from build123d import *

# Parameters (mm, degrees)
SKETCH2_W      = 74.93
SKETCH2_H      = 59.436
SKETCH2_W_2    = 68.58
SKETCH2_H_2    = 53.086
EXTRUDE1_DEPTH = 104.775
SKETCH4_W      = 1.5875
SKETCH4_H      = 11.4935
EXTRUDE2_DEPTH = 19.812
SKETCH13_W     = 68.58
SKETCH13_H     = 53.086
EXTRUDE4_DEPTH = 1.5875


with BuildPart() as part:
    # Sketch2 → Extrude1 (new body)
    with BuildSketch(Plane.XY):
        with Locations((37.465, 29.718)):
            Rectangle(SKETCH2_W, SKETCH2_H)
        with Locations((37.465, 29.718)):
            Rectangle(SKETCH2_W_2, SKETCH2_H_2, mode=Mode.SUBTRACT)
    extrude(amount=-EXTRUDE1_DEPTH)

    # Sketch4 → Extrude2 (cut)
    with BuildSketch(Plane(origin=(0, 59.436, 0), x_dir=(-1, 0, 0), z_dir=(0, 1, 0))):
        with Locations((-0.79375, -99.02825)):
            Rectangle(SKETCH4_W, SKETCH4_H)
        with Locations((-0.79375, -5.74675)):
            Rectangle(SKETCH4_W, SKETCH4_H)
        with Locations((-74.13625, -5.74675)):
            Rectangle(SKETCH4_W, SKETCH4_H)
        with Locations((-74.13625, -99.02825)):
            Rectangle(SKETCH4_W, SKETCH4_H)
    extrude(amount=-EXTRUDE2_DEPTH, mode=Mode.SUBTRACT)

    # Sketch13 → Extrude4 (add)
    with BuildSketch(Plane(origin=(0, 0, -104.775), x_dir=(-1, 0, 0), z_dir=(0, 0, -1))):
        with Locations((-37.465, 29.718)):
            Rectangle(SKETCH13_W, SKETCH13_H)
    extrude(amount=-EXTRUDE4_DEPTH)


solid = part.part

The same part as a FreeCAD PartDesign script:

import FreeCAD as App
import Part
import Sketcher

V = App.Vector
Q = App.Units.Quantity

doc = App.newDocument("Part")
body = doc.addObject("PartDesign::Body", "Body")

sketch1 = body.newObject("Sketcher::SketchObject", "Sketch")
sketch1.AttachmentSupport = (doc.getObject("XY_Plane"), [""])
sketch1.MapMode = "FlatFace"
sketch1.addGeometry([
    Part.LineSegment(V(0, 59, 0), V(0, 0, 0)),
    Part.LineSegment(V(0, 0, 0), V(75, 0, 0)),
    Part.LineSegment(V(75, 0, 0), V(75, 59, 0)),
    Part.LineSegment(V(75, 59, 0), V(0, 59, 0)),
    Part.LineSegment(V(72, 3, 0), V(3, 3, 0)),
    Part.LineSegment(V(3, 3, 0), V(3, 56, 0)),
    Part.LineSegment(V(3, 56, 0), V(72, 56, 0)),
    Part.LineSegment(V(72, 56, 0), V(72, 3, 0)),
], False)
sketch1.addConstraint([
    Sketcher.Constraint("Coincident", 0, 2, 1, 1),
    Sketcher.Constraint("Coincident", 1, 2, 2, 1),
    Sketcher.Constraint("Coincident", 2, 2, 3, 1),
    Sketcher.Constraint("Coincident", 3, 2, 0, 1),
    Sketcher.Constraint("Coincident", 4, 2, 5, 1),
    Sketcher.Constraint("Coincident", 5, 2, 6, 1),
    Sketcher.Constraint("Coincident", 6, 2, 7, 1),
    Sketcher.Constraint("Coincident", 7, 2, 4, 1),
    Sketcher.Constraint("Vertical", 0),
    Sketcher.Constraint("Horizontal", 1),
    Sketcher.Constraint("Vertical", 2),
    Sketcher.Constraint("Horizontal", 3),
    Sketcher.Constraint("Horizontal", 4),
    Sketcher.Constraint("Vertical", 5),
    Sketcher.Constraint("Horizontal", 6),
    Sketcher.Constraint("Vertical", 7),
    Sketcher.Constraint("Coincident", 0, 2, -1, 1),
    Sketcher.Constraint("DistanceX", 4, 2, 4, 1, Q("2.7 in")),
    Sketcher.Constraint("DistanceX", 1, 1, 1, 2, Q("2.95 in")),
    Sketcher.Constraint("DistanceY", 0, 2, 0, 1, Q("2.34 in")),
    Sketcher.Constraint("DistanceY", 5, 1, 5, 2, Q("2.09 in")),
    Sketcher.Constraint("DistanceX", -1, 1, 4, 2, Q("0.125 in")),
    Sketcher.Constraint("DistanceY", -1, 1, 4, 2, Q("0.125 in")),
])
pad1 = body.newObject("PartDesign::Pad", "Pad")
pad1.Profile = sketch1
pad1.Length = Q("4.125 in")
pad1.Reversed = True

sketch2 = body.newObject("Sketcher::SketchObject", "Sketch001")
sketch2.AttachmentSupport = (doc.getObject("XZ_Plane"), [""])
sketch2.MapMode = "FlatFace"
sketch2.AttachmentOffset = App.Placement(V(0, 0, -2.34 * 25.4), App.Rotation())
sketch2.addGeometry([
    Part.LineSegment(V(1.6, -93.3, 0), V(1.6, -104.8, 0)),
    Part.LineSegment(V(1.6, -104.8, 0), V(0, -104.8, 0)),
    Part.LineSegment(V(0, -104.8, 0), V(0, -93.3, 0)),
    Part.LineSegment(V(0, -93.3, 0), V(1.6, -93.3, 0)),
    Part.LineSegment(V(1.6, 0, 0), V(1.6, -11.5, 0)),
    Part.LineSegment(V(1.6, -11.5, 0), V(0, -11.5, 0)),
    Part.LineSegment(V(0, -11.5, 0), V(0, 0, 0)),
    Part.LineSegment(V(0, 0, 0), V(1.6, 0, 0)),
    Part.LineSegment(V(74.9, 0, 0), V(74.9, -11.5, 0)),
    Part.LineSegment(V(74.9, -11.5, 0), V(73.3, -11.5, 0)),
    Part.LineSegment(V(73.3, -11.5, 0), V(73.3, 0, 0)),
    Part.LineSegment(V(73.3, 0, 0), V(74.9, 0, 0)),
    Part.LineSegment(V(74.9, -93.3, 0), V(74.9, -104.8, 0)),
    Part.LineSegment(V(74.9, -104.8, 0), V(73.3, -104.8, 0)),
    Part.LineSegment(V(73.3, -104.8, 0), V(73.3, -93.3, 0)),
    Part.LineSegment(V(73.3, -93.3, 0), V(74.9, -93.3, 0)),
], False)
sketch2.addConstraint([
    Sketcher.Constraint("Coincident", 0, 2, 1, 1),
    Sketcher.Constraint("Coincident", 1, 2, 2, 1),
    Sketcher.Constraint("Coincident", 2, 2, 3, 1),
    Sketcher.Constraint("Coincident", 3, 2, 0, 1),
    Sketcher.Constraint("Coincident", 4, 2, 5, 1),
    Sketcher.Constraint("Coincident", 5, 2, 6, 1),
    Sketcher.Constraint("Coincident", 6, 2, 7, 1),
    Sketcher.Constraint("Coincident", 7, 2, 4, 1),
    Sketcher.Constraint("Coincident", 8, 2, 9, 1),
    Sketcher.Constraint("Coincident", 9, 2, 10, 1),
    Sketcher.Constraint("Coincident", 10, 2, 11, 1),
    Sketcher.Constraint("Coincident", 11, 2, 8, 1),
    Sketcher.Constraint("Coincident", 12, 2, 13, 1),
    Sketcher.Constraint("Coincident", 13, 2, 14, 1),
    Sketcher.Constraint("Coincident", 14, 2, 15, 1),
    Sketcher.Constraint("Coincident", 15, 2, 12, 1),
    Sketcher.Constraint("Vertical", 0),
    Sketcher.Constraint("Horizontal", 1),
    Sketcher.Constraint("Vertical", 2),
    Sketcher.Constraint("Horizontal", 3),
    Sketcher.Constraint("Vertical", 4),
    Sketcher.Constraint("Horizontal", 5),
    Sketcher.Constraint("Vertical", 6),
    Sketcher.Constraint("Horizontal", 7),
    Sketcher.Constraint("Vertical", 8),
    Sketcher.Constraint("Horizontal", 9),
    Sketcher.Constraint("Vertical", 10),
    Sketcher.Constraint("Horizontal", 11),
    Sketcher.Constraint("Vertical", 12),
    Sketcher.Constraint("Horizontal", 13),
    Sketcher.Constraint("Vertical", 14),
    Sketcher.Constraint("Horizontal", 15),
    Sketcher.Constraint("Coincident", 6, 2, -1, 1),
    Sketcher.Constraint("PointOnObject", 1, 2, -2),
    Sketcher.Constraint("PointOnObject", 10, 2, -1),
    Sketcher.Constraint("Horizontal", 5, 2, 8, 2),
    Sketcher.Constraint("Horizontal", 1, 2, 12, 2),
    Sketcher.Constraint("Horizontal", 3, 2, 14, 2),
    Sketcher.Constraint("Vertical", 3, 2, 4, 2),
    Sketcher.Constraint("Vertical", 11, 2, 12, 2),
    Sketcher.Constraint("Vertical", 10, 2, 13, 2),
    Sketcher.Constraint("Equal", 7, 9),
    Sketcher.Constraint("Equal", 2, 4),
    Sketcher.Constraint("DistanceX", 1, 2, 1, 1, Q("0.0625 in")),
    Sketcher.Constraint("DistanceX", -1, 1, 8, 2, Q("2.95 in")),
    Sketcher.Constraint("DistanceY", 3, 2, 4, 2, Q("3.22 in")),
    Sketcher.Constraint("DistanceY", 0, 2, 0, 1, Q("0.4525 in")),
])
pocket1 = body.newObject("PartDesign::Pocket", "Pocket")
pocket1.Profile = sketch2
pocket1.Length = Q("0.78 in")
pocket1.Reversed = True

sketch3 = body.newObject("Sketcher::SketchObject", "Sketch002")
sketch3.AttachmentSupport = (doc.getObject("XY_Plane"), [""])
sketch3.MapMode = "FlatFace"
sketch3.AttachmentOffset = App.Placement(V(0, 0, -4.125 * 25.4), App.Rotation())
sketch3.addGeometry([
    Part.LineSegment(V(72, 56, 0), V(72, 3, 0)),
    Part.LineSegment(V(72, 3, 0), V(3, 3, 0)),
    Part.LineSegment(V(3, 3, 0), V(3, 56, 0)),
    Part.LineSegment(V(3, 56, 0), V(72, 56, 0)),
], False)
sketch3.addConstraint([
    Sketcher.Constraint("Coincident", 0, 2, 1, 1),
    Sketcher.Constraint("Coincident", 1, 2, 2, 1),
    Sketcher.Constraint("Coincident", 2, 2, 3, 1),
    Sketcher.Constraint("Coincident", 3, 2, 0, 1),
    Sketcher.Constraint("Vertical", 0),
    Sketcher.Constraint("Horizontal", 1),
    Sketcher.Constraint("Vertical", 2),
    Sketcher.Constraint("Horizontal", 3),
    Sketcher.Constraint("DistanceX", 1, 2, 1, 1, Q("2.7 in")),
    Sketcher.Constraint("DistanceY", 0, 2, 0, 1, Q("2.09 in")),
    Sketcher.Constraint("DistanceX", -1, 1, 0, 2, Q("2.825 in")),
    Sketcher.Constraint("DistanceY", -1, 1, 0, 2, Q("0.125 in")),
])
pad2 = body.newObject("PartDesign::Pad", "Pad001")
pad2.Profile = sketch3
pad2.Length = Q("0.0625 in")

doc.recompute()
